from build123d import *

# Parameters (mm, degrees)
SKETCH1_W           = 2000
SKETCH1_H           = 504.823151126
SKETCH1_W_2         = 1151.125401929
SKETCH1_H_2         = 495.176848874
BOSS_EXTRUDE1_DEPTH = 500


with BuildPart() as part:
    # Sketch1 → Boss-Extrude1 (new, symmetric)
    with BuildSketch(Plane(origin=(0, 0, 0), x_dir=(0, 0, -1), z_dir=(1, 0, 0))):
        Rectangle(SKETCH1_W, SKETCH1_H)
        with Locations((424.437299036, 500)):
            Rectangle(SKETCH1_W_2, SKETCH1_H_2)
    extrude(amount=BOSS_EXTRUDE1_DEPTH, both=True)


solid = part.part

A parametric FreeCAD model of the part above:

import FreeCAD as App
import Part
import Sketcher
Q = App.Units.Quantity


def add_polygon(sketch, points):
    """Adds a closed chain of lines whose ends are joined by coincident constraints."""
    first, n = sketch.GeometryCount, len(points)
    for a, b in zip(points, points[1:] + points[:1]):
        sketch.addGeometry(Part.LineSegment(App.Vector(*a, 0), App.Vector(*b, 0)), False)
    for i in range(n):
        sketch.addConstraint(Sketcher.Constraint("Coincident", first + i, 2, first + (i + 1) % n, 1))

doc = App.newDocument("Part")
body = doc.addObject("PartDesign::Body", "Body")

# Sketch on YZ plane
sketch1 = body.newObject("Sketcher::SketchObject", "Sketch")
sketch1.AttachmentSupport = (doc.getObject("YZ_Plane"), [""])
sketch1.MapMode = "FlatFace"
add_polygon(sketch1, [(252, 1000), (-252, 1000), (-252, -1000), (748, -1000), (748, 151), (252, 151)])  # lines 0-5
sketch1.addConstraint(Sketcher.Constraint("Horizontal", 0))
sketch1.addConstraint(Sketcher.Constraint("Vertical", 1))
sketch1.addConstraint(Sketcher.Constraint("Horizontal", 2))
sketch1.addConstraint(Sketcher.Constraint("Vertical", 3))
sketch1.addConstraint(Sketcher.Constraint("Horizontal", 4))
sketch1.addConstraint(Sketcher.Constraint("Vertical", 5))
sketch1.addConstraint(Sketcher.Constraint("Symmetric", 1, 2, 5, 2, -1, 1))
sketch1.addConstraint(Sketcher.Constraint("DistanceX", 2, 1, 2, 2, Q("1000 mm")))
sketch1.addConstraint(Sketcher.Constraint("DistanceY", 1, 2, 1, 1, Q("2000 mm")))
sketch1.addConstraint(Sketcher.Constraint("DistanceY", 3, 1, 3, 2, Q("1151.125402 mm")))
sketch1.addConstraint(Sketcher.Constraint("DistanceX", 0, 2, 0, 1, Q("504.823151 mm")))
pad1 = body.newObject("PartDesign::Pad", "Pad")
pad1.Profile = sketch1
pad1.Length = 1000
pad1.Midplane = True

doc.recompute()
